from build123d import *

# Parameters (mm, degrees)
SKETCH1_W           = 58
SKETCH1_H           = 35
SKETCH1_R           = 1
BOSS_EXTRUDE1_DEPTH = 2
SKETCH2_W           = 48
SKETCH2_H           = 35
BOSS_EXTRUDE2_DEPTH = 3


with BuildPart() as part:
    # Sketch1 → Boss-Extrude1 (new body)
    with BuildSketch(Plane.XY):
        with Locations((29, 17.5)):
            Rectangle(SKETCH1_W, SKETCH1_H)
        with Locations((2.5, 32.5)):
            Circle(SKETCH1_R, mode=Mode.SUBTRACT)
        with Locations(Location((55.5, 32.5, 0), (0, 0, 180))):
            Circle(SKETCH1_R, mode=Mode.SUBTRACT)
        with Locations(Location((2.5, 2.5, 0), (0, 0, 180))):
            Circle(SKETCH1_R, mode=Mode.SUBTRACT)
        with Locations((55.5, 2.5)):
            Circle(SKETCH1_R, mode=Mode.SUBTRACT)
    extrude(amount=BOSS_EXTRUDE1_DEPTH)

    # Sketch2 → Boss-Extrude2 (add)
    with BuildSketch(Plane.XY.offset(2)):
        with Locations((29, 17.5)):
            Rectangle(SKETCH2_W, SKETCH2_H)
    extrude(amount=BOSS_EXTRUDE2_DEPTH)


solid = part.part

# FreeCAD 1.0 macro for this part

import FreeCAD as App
import Part
import Sketcher
from FreeCAD import Vector


def add_polygon(sketch, points):
    """Adds a closed chain of lines whose ends are joined by coincident constraints."""
    first, n = sketch.GeometryCount, len(points)
    for a, b in zip(points, points[1:] + points[:1]):
        sketch.addGeometry(Part.LineSegment(App.Vector(*a, 0), App.Vector(*b, 0)), False)
    for i in range(n):
        sketch.addConstraint(Sketcher.Constraint("Coincident", first + i, 2, first + (i + 1) % n, 1))

doc = App.newDocument("Part")
body = doc.addObject("PartDesign::Body", "Body")

# Sketch on XY plane
sketch1 = body.newObject("Sketcher::SketchObject", "Sketch")
sketch1.AttachmentSupport = (doc.getObject("XY_Plane"), [""])
sketch1.MapMode = "FlatFace"
add_polygon(sketch1, [(0, 35), (0, 0), (58, 0), (58, 35)])  # lines 0-3
sketch1.addGeometry(Part.Circle(Vector(2.5, 2.5, 0), Vector(0, 0, 1), 1), False)  # 4
sketch1.addGeometry(Part.Circle(Vector(55.5, 2.5, 0), Vector(0, 0, 1), 1), False)  # 5
sketch1.addGeometry(Part.Circle(Vector(2.5, 32.5, 0), Vector(0, 0, 1), 1), False)  # 6
sketch1.addGeometry(Part.Circle(Vector(55.5, 32.5, 0), Vector(0, 0, 1), 1), False)  # 7
sketch1.addConstraint([
    Sketcher.Constraint("Vertical", 0),
    Sketcher.Constraint("Horizontal", 1),
    Sketcher.Constraint("Vertical", 2),
    Sketcher.Constraint("Horizontal", 3),
    Sketcher.Constraint("Coincident", 0, 2, -1, 1),
    Sketcher.Constraint("Equal", 4, 5),
    Sketcher.Constraint("Equal", 5, 6),
    Sketcher.Constraint("Equal", 6, 7),
    Sketcher.Constraint("Horizontal", 4, 3, 5, 3),
    Sketcher.Constraint("Horizontal", 6, 3, 7, 3),
    Sketcher.Constraint("Vertical", 4, 3, 6, 3),
    Sketcher.Constraint("Vertical", 5, 3, 7, 3),
    Sketcher.Constraint("Diameter", 4, 2.0),
    Sketcher.Constraint("DistanceX", 1, 1, 1, 2, 58.0),
    Sketcher.Constraint("DistanceY", 0, 2, 0, 1, 35.0),
    Sketcher.Constraint("DistanceX", 4, 3, 5, 3, 53.0),
    Sketcher.Constraint("DistanceY", 4, 3, 6, 3, 30.0),
    Sketcher.Constraint("DistanceX", -1, 1, 4, 3, 2.5),
    Sketcher.Constraint("DistanceY", -1, 1, 4, 3, 2.5),
])
pad1 = body.newObject("PartDesign::Pad", "Pad")
pad1.Profile = sketch1
pad1.Length = 2

# Sketch on XY plane
sketch2 = body.newObject("Sketcher::SketchObject", "Sketch001")
sketch2.AttachmentSupport = (doc.getObject("XY_Plane"), [""])
sketch2.MapMode = "FlatFace"
sketch2.AttachmentOffset = App.Placement(Vector(0, 0, 2), App.Rotation())
add_polygon(sketch2, [(5, 35), (5, 0), (53, 0), (53, 35)])  # lines 0-3
sketch2.addConstraint([
    Sketcher.Constraint("Vertical", 0),
    Sketcher.Constraint("Horizontal", 1),
    Sketcher.Constraint("Vertical", 2),
    Sketcher.Constraint("Horizontal", 3),
    Sketcher.Constraint("PointOnObject", 0, 2, -1),
    Sketcher.Constraint("DistanceX", 1, 1, 1, 2, 48.0),
    Sketcher.Constraint("DistanceY", 0, 2, 0, 1, 35.0),
    Sketcher.Constraint("DistanceX", -1, 1, 0, 2, 5.0),
])
pad2 = body.newObject("PartDesign::Pad", "Pad001")
pad2.Profile = sketch2
pad2.Length = 3

doc.recompute()
